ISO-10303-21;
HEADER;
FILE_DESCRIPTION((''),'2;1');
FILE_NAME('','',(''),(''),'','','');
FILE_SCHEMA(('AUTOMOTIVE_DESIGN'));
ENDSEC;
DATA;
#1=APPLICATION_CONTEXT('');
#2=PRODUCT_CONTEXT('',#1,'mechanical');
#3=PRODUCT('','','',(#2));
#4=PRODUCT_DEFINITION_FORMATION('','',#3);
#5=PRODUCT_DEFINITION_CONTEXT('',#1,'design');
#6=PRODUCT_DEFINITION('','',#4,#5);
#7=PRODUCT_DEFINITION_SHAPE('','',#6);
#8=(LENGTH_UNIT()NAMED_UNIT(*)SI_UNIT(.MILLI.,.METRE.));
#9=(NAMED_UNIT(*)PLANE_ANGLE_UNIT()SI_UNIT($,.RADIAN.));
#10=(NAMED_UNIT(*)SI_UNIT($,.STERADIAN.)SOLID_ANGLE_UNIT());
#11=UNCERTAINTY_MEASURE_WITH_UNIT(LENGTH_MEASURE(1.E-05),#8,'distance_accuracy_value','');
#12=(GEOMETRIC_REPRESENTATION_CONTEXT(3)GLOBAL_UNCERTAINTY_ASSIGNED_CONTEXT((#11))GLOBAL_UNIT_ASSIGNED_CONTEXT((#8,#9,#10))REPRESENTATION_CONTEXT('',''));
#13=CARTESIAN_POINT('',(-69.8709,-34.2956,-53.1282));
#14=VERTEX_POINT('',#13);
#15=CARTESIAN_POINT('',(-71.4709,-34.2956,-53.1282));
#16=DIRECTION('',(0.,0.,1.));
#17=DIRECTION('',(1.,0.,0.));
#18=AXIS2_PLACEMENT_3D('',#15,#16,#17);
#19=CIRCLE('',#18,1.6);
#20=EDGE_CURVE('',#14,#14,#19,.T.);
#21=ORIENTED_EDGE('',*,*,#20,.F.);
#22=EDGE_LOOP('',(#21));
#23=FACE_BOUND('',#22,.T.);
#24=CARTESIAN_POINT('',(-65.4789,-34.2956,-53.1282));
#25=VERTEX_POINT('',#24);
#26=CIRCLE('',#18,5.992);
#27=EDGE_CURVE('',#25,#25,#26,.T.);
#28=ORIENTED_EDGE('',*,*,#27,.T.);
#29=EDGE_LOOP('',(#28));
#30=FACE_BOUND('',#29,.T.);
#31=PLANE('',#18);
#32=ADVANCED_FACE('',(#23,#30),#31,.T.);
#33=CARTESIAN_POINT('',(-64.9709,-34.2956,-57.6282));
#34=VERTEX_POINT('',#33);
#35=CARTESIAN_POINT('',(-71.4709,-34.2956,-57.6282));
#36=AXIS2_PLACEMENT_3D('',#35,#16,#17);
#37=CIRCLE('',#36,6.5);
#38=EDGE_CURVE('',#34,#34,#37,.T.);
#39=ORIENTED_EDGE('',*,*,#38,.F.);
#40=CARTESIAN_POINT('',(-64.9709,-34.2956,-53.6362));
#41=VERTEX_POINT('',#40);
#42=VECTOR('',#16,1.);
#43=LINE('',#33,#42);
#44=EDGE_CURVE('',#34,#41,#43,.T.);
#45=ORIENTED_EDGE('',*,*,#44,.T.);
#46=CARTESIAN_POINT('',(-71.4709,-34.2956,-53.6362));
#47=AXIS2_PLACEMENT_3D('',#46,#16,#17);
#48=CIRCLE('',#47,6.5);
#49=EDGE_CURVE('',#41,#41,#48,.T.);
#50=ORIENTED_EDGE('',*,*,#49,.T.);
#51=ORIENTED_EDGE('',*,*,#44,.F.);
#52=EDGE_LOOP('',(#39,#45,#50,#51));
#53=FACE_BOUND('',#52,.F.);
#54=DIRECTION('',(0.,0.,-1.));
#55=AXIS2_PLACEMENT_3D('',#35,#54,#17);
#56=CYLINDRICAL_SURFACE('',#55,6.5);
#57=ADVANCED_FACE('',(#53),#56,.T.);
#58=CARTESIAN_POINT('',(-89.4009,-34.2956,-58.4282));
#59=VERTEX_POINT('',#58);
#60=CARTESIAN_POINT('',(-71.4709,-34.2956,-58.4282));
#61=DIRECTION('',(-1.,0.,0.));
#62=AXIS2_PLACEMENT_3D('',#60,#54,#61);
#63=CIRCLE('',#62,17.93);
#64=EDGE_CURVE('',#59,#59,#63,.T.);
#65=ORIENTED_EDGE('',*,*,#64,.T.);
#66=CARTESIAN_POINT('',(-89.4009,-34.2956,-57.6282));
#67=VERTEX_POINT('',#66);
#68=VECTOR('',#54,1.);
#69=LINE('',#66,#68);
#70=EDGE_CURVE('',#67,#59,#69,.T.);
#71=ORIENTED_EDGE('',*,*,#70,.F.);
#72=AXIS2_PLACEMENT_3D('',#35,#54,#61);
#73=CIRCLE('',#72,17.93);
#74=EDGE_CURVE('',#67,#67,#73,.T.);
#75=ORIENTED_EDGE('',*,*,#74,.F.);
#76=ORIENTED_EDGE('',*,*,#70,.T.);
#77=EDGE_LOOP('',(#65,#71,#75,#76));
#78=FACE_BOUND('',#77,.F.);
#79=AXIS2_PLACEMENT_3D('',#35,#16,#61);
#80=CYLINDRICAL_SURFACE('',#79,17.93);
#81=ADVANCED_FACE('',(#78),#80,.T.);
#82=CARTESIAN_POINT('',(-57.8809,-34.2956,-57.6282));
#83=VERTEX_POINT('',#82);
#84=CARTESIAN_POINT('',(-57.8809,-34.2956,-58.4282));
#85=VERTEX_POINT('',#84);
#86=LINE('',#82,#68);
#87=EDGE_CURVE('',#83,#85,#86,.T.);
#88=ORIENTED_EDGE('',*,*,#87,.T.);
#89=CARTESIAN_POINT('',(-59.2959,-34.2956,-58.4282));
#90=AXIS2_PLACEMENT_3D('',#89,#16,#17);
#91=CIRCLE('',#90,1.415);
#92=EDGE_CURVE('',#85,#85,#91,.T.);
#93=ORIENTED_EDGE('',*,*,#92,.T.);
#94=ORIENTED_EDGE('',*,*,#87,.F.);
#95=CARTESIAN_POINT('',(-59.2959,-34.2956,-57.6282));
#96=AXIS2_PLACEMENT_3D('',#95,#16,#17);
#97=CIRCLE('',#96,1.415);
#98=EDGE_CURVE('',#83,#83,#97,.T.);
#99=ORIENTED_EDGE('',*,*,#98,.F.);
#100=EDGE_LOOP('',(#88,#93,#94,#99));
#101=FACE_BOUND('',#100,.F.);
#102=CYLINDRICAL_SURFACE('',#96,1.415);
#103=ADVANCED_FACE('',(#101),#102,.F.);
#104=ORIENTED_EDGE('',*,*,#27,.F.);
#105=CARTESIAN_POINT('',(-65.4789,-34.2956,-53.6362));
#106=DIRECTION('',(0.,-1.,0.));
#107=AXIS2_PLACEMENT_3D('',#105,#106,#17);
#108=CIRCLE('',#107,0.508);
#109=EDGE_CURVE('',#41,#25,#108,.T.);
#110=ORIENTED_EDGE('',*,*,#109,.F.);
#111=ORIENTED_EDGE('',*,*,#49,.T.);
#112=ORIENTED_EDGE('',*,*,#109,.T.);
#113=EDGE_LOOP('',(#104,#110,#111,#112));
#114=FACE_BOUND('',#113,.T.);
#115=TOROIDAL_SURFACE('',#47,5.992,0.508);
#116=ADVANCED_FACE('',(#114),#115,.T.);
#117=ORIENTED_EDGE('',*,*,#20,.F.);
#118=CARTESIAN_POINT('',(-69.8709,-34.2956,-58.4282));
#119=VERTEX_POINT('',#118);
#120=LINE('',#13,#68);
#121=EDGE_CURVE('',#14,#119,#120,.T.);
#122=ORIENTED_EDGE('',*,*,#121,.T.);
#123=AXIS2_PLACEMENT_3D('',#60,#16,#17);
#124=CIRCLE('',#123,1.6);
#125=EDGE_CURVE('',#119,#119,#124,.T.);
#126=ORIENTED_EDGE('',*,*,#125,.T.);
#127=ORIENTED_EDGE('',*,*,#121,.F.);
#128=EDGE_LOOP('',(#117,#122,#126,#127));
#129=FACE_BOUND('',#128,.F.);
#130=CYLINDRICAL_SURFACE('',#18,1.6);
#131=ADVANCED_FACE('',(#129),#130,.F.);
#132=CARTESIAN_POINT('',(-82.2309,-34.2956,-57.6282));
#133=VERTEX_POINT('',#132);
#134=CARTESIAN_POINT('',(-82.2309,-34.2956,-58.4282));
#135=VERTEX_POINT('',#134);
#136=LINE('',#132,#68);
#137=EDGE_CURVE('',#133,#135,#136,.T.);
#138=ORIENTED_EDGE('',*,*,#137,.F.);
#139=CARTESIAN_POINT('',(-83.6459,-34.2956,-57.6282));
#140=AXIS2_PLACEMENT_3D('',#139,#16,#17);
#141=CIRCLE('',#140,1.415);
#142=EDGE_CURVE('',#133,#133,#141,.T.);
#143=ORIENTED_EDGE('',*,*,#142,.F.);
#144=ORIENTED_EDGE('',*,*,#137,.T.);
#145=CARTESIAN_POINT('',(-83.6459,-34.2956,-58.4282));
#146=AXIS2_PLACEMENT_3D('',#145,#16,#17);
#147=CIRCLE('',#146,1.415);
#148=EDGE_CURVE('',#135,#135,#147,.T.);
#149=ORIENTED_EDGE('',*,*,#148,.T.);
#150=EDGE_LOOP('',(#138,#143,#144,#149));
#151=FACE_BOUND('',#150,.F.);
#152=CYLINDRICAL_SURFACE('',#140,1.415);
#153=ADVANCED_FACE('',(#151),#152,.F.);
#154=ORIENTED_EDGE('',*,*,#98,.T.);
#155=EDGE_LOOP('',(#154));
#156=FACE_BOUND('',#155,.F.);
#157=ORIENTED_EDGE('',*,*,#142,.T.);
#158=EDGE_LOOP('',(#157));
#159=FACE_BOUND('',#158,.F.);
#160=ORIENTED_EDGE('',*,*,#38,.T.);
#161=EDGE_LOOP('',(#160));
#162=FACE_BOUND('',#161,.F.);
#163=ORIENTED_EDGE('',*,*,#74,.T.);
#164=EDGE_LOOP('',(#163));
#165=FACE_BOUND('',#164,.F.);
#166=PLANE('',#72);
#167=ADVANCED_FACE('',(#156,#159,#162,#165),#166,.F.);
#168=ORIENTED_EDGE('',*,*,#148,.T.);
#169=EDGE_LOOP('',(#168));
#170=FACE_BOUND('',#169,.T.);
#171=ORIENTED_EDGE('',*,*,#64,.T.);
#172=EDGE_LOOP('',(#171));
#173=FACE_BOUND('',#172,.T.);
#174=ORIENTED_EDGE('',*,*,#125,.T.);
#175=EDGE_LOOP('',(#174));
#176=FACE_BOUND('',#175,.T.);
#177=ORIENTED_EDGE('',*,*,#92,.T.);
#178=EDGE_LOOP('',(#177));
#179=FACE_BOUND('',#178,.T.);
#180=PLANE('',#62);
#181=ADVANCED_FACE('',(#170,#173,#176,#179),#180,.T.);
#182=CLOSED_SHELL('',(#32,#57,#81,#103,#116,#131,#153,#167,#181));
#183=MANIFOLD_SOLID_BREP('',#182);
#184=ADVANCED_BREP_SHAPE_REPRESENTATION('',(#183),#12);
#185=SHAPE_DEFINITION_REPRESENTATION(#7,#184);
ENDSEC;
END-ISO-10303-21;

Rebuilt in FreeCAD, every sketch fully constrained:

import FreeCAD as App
import Part
import Sketcher

V = App.Vector
Q = App.Units.Quantity


def edges_at(feature, points):
    """Names of the edges that pass closest to the given points."""
    edges = feature.Shape.Edges
    near = lambda p: min(range(len(edges)), key=lambda i: edges[i].distToShape(Part.Vertex(*p))[0])
    return sorted({f"Edge{near(p) + 1}" for p in points})

doc = App.newDocument("Part")
body = doc.addObject("PartDesign::Body", "Body")

# Sketch on XY plane
sketch1 = body.newObject("Sketcher::SketchObject", "Sketch")
sketch1.AttachmentSupport = (doc.getObject("XY_Plane"), [""])
sketch1.MapMode = "FlatFace"
sketch1.AttachmentOffset = App.Placement(V(0, 0, -57.6282), App.Rotation())
sketch1.addGeometry(Part.Circle(V(-71, -34, 0), V(0, 0, 1), 18), False)
sketch1.addConstraint([
    Sketcher.Constraint("Diameter", 0, Q("35.86 mm")),
    Sketcher.Constraint("DistanceX", 0, 3, -1, 1, Q("71.471 mm")),
    Sketcher.Constraint("DistanceY", 0, 3, -1, 1, Q("34.2956 mm")),
])
pad1 = body.newObject("PartDesign::Pad", "Pad")
pad1.Profile = sketch1
pad1.Length = 0.8
pad1.Reversed = True

# Sketch on XY plane
sketch2 = body.newObject("Sketcher::SketchObject", "Sketch001")
sketch2.AttachmentSupport = (doc.getObject("XY_Plane"), [""])
sketch2.MapMode = "FlatFace"
sketch2.AttachmentOffset = App.Placement(V(0, 0, -57.6282), App.Rotation())
sketch2.addGeometry([
    Part.Circle(V(-59.3, -34.3, 0), V(0, 0, 1), 1.4),
    Part.Circle(V(-83.6, -34.3, 0), V(0, 0, 1), 1.4),
], False)
sketch2.addConstraint([
    Sketcher.Constraint("Equal", 0, 1),
    Sketcher.Constraint("Horizontal", 0, 3, 1, 3),
    Sketcher.Constraint("Diameter", 0, Q("2.83 mm")),
    Sketcher.Constraint("DistanceX", 1, 3, 0, 3, Q("24.35 mm")),
    Sketcher.Constraint("DistanceX", 0, 3, -1, 1, Q("59.296 mm")),
    Sketcher.Constraint("DistanceY", 0, 3, -1, 1, Q("34.2956 mm")),
])
pocket1 = body.newObject("PartDesign::Pocket", "Pocket")
pocket1.Profile = sketch2
pocket1.Length = 0.8

# Sketch on XY plane
sketch3 = body.newObject("Sketcher::SketchObject", "Sketch002")
sketch3.AttachmentSupport = (doc.getObject("XY_Plane"), [""])
sketch3.MapMode = "FlatFace"
sketch3.AttachmentOffset = App.Placement(V(0, 0, -57.6282), App.Rotation())
sketch3.addGeometry(Part.Circle(V(-71, -34, 0), V(0, 0, 1), 6), False)
sketch3.addConstraint([
    Sketcher.Constraint("Diameter", 0, Q("13 mm")),
    Sketcher.Constraint("DistanceX", 0, 3, -1, 1, Q("71.471 mm")),
    Sketcher.Constraint("DistanceY", 0, 3, -1, 1, Q("34.2956 mm")),
])
pad2 = body.newObject("PartDesign::Pad", "Pad001")
pad2.Profile = sketch3
pad2.Length = 4.5
doc.recompute()

fillet = body.newObject("PartDesign::Fillet", "Fillet")
fillet.Base = (pad2, edges_at(pad2, [(-77.971, -34.296, -53.128)]))
fillet.Radius = 0.508

# Sketch on XY plane
sketch4 = body.newObject("Sketcher::SketchObject", "Sketch003")
sketch4.AttachmentSupport = (doc.getObject("XY_Plane"), [""])
sketch4.MapMode = "FlatFace"
sketch4.AttachmentOffset = App.Placement(V(0, 0, -53.1282), App.Rotation())
sketch4.addGeometry(Part.Circle(V(-71.5, -34.3, 0), V(0, 0, 1), 1.6), False)
sketch4.addConstraint([
    Sketcher.Constraint("Diameter", 0, Q("3.2 mm")),
    Sketcher.Constraint("DistanceX", 0, 3, -1, 1, Q("71.471 mm")),
    Sketcher.Constraint("DistanceY", 0, 3, -1, 1, Q("34.2956 mm")),
])
pocket2 = body.newObject("PartDesign::Pocket", "Pocket001")
pocket2.Profile = sketch4
pocket2.Length = 19.2875

doc.recompute()
